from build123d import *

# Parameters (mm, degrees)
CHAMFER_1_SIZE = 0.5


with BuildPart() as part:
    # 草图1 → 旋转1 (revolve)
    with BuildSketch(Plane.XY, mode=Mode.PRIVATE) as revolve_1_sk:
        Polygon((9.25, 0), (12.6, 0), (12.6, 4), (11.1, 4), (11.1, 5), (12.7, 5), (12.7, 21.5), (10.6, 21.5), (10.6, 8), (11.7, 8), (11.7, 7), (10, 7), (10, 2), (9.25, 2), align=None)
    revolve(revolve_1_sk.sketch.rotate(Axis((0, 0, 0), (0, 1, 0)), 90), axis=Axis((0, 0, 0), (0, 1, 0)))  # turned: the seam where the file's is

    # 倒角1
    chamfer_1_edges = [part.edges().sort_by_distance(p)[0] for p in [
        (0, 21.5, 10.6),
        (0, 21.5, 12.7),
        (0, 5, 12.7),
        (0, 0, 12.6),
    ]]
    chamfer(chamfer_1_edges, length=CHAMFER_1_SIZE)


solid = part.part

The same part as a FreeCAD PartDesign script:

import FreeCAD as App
import Part
import Sketcher

V = App.Vector


def edges_at(feature, points):
    """Names of the edges that pass closest to the given points."""
    edges = feature.Shape.Edges
    near = lambda p: min(range(len(edges)), key=lambda i: edges[i].distToShape(Part.Vertex(*p))[0])
    return sorted({f"Edge{near(p) + 1}" for p in points})

doc = App.newDocument("Part")
body = doc.addObject("PartDesign::Body", "Body")

# Sketch on XY plane
sketch1 = body.newObject("Sketcher::SketchObject", "Sketch")
sketch1.AttachmentSupport = (doc.getObject("XY_Plane"), [""])
sketch1.MapMode = "FlatFace"
sketch1.addGeometry(Part.LineSegment(V(9.2, 0, 0), V(12.6, 0, 0)), False)
sketch1.addGeometry(Part.LineSegment(V(12.6, 0, 0), V(12.6, 4, 0)), False)
sketch1.addGeometry(Part.LineSegment(V(12.6, 4, 0), V(11.1, 4, 0)), False)
sketch1.addGeometry(Part.LineSegment(V(11.1, 4, 0), V(11.1, 5, 0)), False)
sketch1.addGeometry(Part.LineSegment(V(11.1, 5, 0), V(12.7, 5, 0)), False)
sketch1.addGeometry(Part.LineSegment(V(12.7, 5, 0), V(12.7, 21.5, 0)), False)
sketch1.addGeometry(Part.LineSegment(V(12.7, 21.5, 0), V(10.6, 21.5, 0)), False)
sketch1.addGeometry(Part.LineSegment(V(10.6, 21.5, 0), V(10.6, 8, 0)), False)
sketch1.addGeometry(Part.LineSegment(V(10.6, 8, 0), V(11.7, 8, 0)), False)
sketch1.addGeometry(Part.LineSegment(V(11.7, 8, 0), V(11.7, 7, 0)), False)
sketch1.addGeometry(Part.LineSegment(V(11.7, 7, 0), V(10, 7, 0)), False)
sketch1.addGeometry(Part.LineSegment(V(10, 7, 0), V(10, 2, 0)), False)
sketch1.addGeometry(Part.LineSegment(V(10, 2, 0), V(9.2, 2, 0)), False)
sketch1.addGeometry(Part.LineSegment(V(9.2, 2, 0), V(9.2, 0, 0)), False)
sketch1.addConstraint(Sketcher.Constraint("Coincident", 0, 2, 1, 1))
sketch1.addConstraint(Sketcher.Constraint("Coincident", 1, 2, 2, 1))
sketch1.addConstraint(Sketcher.Constraint("Coincident", 2, 2, 3, 1))
sketch1.addConstraint(Sketcher.Constraint("Coincident", 3, 2, 4, 1))
sketch1.addConstraint(Sketcher.Constraint("Coincident", 4, 2, 5, 1))
sketch1.addConstraint(Sketcher.Constraint("Coincident", 5, 2, 6, 1))
sketch1.addConstraint(Sketcher.Constraint("Coincident", 6, 2, 7, 1))
sketch1.addConstraint(Sketcher.Constraint("Coincident", 7, 2, 8, 1))
sketch1.addConstraint(Sketcher.Constraint("Coincident", 8, 2, 9, 1))
sketch1.addConstraint(Sketcher.Constraint("Coincident", 9, 2, 10, 1))
sketch1.addConstraint(Sketcher.Constraint("Coincident", 10, 2, 11, 1))
sketch1.addConstraint(Sketcher.Constraint("Coincident", 11, 2, 12, 1))
sketch1.addConstraint(Sketcher.Constraint("Coincident", 12, 2, 13, 1))
sketch1.addConstraint(Sketcher.Constraint("Coincident", 13, 2, 0, 1))
sketch1.addConstraint(Sketcher.Constraint("Horizontal", 0))
sketch1.addConstraint(Sketcher.Constraint("Vertical", 1))
sketch1.addConstraint(Sketcher.Constraint("Horizontal", 2))
sketch1.addConstraint(Sketcher.Constraint("Vertical", 3))
sketch1.addConstraint(Sketcher.Constraint("Horizontal", 4))
sketch1.addConstraint(Sketcher.Constraint("Vertical", 5))
sketch1.addConstraint(Sketcher.Constraint("Horizontal", 6))
sketch1.addConstraint(Sketcher.Constraint("Vertical", 7))
sketch1.addConstraint(Sketcher.Constraint("Horizontal", 8))
sketch1.addConstraint(Sketcher.Constraint("Vertical", 9))
sketch1.addConstraint(Sketcher.Constraint("Horizontal", 10))
sketch1.addConstraint(Sketcher.Constraint("Vertical", 11))
sketch1.addConstraint(Sketcher.Constraint("Horizontal", 12))
sketch1.addConstraint(Sketcher.Constraint("Vertical", 13))
sketch1.addConstraint(Sketcher.Constraint("PointOnObject", 0, 2, -1))
sketch1.addConstraint(Sketcher.Constraint("Equal", 3, 9))
sketch1.addConstraint(Sketcher.Constraint("DistanceY", 1, 1, 1, 2, 4.0))
sketch1.addConstraint(Sketcher.Constraint("DistanceY", 3, 1, 3, 2, 1.0))
sketch1.addConstraint(Sketcher.Constraint("DistanceY", 11, 2, 11, 1, 5.0))
sketch1.addConstraint(Sketcher.Constraint("DistanceY", 13, 2, 13, 1, 2.0))
sketch1.addConstraint(Sketcher.Constraint("DistanceX", 2, 2, 2, 1, 1.5))
sketch1.addConstraint(Sketcher.Constraint("DistanceX", 4, 1, 4, 2, 1.6))
sketch1.addConstraint(Sketcher.Constraint("DistanceX", 6, 2, 6, 1, 2.1))
sketch1.addConstraint(Sketcher.Constraint("DistanceX", 8, 1, 8, 2, 1.1))
sketch1.addConstraint(Sketcher.Constraint("DistanceX", 10, 2, 10, 1, 1.7))
sketch1.addConstraint(Sketcher.Constraint("DistanceY", 5, 1, 5, 2, 16.5))
sketch1.addConstraint(Sketcher.Constraint("DistanceX", -1, 1, 10, 2, 10.0))
sketch1.addConstraint(Sketcher.Constraint("DistanceX", 0, 1, 0, 2, 3.35))
revolution = body.newObject("PartDesign::Revolution", "Revolution")
revolution.Profile = sketch1
revolution.ReferenceAxis = (sketch1, ["V_Axis"])
revolution.Angle = 360
doc.recompute()

chamfer = body.newObject("PartDesign::Chamfer", "Chamfer")
chamfer.Base = (revolution, edges_at(revolution, [
    (0, 21.5, 10.6),
    (0, 21.5, 12.7),
    (0, 5, 12.7),
    (0, 0, 12.6),
]))
chamfer.Size = 0.5

doc.recompute()
